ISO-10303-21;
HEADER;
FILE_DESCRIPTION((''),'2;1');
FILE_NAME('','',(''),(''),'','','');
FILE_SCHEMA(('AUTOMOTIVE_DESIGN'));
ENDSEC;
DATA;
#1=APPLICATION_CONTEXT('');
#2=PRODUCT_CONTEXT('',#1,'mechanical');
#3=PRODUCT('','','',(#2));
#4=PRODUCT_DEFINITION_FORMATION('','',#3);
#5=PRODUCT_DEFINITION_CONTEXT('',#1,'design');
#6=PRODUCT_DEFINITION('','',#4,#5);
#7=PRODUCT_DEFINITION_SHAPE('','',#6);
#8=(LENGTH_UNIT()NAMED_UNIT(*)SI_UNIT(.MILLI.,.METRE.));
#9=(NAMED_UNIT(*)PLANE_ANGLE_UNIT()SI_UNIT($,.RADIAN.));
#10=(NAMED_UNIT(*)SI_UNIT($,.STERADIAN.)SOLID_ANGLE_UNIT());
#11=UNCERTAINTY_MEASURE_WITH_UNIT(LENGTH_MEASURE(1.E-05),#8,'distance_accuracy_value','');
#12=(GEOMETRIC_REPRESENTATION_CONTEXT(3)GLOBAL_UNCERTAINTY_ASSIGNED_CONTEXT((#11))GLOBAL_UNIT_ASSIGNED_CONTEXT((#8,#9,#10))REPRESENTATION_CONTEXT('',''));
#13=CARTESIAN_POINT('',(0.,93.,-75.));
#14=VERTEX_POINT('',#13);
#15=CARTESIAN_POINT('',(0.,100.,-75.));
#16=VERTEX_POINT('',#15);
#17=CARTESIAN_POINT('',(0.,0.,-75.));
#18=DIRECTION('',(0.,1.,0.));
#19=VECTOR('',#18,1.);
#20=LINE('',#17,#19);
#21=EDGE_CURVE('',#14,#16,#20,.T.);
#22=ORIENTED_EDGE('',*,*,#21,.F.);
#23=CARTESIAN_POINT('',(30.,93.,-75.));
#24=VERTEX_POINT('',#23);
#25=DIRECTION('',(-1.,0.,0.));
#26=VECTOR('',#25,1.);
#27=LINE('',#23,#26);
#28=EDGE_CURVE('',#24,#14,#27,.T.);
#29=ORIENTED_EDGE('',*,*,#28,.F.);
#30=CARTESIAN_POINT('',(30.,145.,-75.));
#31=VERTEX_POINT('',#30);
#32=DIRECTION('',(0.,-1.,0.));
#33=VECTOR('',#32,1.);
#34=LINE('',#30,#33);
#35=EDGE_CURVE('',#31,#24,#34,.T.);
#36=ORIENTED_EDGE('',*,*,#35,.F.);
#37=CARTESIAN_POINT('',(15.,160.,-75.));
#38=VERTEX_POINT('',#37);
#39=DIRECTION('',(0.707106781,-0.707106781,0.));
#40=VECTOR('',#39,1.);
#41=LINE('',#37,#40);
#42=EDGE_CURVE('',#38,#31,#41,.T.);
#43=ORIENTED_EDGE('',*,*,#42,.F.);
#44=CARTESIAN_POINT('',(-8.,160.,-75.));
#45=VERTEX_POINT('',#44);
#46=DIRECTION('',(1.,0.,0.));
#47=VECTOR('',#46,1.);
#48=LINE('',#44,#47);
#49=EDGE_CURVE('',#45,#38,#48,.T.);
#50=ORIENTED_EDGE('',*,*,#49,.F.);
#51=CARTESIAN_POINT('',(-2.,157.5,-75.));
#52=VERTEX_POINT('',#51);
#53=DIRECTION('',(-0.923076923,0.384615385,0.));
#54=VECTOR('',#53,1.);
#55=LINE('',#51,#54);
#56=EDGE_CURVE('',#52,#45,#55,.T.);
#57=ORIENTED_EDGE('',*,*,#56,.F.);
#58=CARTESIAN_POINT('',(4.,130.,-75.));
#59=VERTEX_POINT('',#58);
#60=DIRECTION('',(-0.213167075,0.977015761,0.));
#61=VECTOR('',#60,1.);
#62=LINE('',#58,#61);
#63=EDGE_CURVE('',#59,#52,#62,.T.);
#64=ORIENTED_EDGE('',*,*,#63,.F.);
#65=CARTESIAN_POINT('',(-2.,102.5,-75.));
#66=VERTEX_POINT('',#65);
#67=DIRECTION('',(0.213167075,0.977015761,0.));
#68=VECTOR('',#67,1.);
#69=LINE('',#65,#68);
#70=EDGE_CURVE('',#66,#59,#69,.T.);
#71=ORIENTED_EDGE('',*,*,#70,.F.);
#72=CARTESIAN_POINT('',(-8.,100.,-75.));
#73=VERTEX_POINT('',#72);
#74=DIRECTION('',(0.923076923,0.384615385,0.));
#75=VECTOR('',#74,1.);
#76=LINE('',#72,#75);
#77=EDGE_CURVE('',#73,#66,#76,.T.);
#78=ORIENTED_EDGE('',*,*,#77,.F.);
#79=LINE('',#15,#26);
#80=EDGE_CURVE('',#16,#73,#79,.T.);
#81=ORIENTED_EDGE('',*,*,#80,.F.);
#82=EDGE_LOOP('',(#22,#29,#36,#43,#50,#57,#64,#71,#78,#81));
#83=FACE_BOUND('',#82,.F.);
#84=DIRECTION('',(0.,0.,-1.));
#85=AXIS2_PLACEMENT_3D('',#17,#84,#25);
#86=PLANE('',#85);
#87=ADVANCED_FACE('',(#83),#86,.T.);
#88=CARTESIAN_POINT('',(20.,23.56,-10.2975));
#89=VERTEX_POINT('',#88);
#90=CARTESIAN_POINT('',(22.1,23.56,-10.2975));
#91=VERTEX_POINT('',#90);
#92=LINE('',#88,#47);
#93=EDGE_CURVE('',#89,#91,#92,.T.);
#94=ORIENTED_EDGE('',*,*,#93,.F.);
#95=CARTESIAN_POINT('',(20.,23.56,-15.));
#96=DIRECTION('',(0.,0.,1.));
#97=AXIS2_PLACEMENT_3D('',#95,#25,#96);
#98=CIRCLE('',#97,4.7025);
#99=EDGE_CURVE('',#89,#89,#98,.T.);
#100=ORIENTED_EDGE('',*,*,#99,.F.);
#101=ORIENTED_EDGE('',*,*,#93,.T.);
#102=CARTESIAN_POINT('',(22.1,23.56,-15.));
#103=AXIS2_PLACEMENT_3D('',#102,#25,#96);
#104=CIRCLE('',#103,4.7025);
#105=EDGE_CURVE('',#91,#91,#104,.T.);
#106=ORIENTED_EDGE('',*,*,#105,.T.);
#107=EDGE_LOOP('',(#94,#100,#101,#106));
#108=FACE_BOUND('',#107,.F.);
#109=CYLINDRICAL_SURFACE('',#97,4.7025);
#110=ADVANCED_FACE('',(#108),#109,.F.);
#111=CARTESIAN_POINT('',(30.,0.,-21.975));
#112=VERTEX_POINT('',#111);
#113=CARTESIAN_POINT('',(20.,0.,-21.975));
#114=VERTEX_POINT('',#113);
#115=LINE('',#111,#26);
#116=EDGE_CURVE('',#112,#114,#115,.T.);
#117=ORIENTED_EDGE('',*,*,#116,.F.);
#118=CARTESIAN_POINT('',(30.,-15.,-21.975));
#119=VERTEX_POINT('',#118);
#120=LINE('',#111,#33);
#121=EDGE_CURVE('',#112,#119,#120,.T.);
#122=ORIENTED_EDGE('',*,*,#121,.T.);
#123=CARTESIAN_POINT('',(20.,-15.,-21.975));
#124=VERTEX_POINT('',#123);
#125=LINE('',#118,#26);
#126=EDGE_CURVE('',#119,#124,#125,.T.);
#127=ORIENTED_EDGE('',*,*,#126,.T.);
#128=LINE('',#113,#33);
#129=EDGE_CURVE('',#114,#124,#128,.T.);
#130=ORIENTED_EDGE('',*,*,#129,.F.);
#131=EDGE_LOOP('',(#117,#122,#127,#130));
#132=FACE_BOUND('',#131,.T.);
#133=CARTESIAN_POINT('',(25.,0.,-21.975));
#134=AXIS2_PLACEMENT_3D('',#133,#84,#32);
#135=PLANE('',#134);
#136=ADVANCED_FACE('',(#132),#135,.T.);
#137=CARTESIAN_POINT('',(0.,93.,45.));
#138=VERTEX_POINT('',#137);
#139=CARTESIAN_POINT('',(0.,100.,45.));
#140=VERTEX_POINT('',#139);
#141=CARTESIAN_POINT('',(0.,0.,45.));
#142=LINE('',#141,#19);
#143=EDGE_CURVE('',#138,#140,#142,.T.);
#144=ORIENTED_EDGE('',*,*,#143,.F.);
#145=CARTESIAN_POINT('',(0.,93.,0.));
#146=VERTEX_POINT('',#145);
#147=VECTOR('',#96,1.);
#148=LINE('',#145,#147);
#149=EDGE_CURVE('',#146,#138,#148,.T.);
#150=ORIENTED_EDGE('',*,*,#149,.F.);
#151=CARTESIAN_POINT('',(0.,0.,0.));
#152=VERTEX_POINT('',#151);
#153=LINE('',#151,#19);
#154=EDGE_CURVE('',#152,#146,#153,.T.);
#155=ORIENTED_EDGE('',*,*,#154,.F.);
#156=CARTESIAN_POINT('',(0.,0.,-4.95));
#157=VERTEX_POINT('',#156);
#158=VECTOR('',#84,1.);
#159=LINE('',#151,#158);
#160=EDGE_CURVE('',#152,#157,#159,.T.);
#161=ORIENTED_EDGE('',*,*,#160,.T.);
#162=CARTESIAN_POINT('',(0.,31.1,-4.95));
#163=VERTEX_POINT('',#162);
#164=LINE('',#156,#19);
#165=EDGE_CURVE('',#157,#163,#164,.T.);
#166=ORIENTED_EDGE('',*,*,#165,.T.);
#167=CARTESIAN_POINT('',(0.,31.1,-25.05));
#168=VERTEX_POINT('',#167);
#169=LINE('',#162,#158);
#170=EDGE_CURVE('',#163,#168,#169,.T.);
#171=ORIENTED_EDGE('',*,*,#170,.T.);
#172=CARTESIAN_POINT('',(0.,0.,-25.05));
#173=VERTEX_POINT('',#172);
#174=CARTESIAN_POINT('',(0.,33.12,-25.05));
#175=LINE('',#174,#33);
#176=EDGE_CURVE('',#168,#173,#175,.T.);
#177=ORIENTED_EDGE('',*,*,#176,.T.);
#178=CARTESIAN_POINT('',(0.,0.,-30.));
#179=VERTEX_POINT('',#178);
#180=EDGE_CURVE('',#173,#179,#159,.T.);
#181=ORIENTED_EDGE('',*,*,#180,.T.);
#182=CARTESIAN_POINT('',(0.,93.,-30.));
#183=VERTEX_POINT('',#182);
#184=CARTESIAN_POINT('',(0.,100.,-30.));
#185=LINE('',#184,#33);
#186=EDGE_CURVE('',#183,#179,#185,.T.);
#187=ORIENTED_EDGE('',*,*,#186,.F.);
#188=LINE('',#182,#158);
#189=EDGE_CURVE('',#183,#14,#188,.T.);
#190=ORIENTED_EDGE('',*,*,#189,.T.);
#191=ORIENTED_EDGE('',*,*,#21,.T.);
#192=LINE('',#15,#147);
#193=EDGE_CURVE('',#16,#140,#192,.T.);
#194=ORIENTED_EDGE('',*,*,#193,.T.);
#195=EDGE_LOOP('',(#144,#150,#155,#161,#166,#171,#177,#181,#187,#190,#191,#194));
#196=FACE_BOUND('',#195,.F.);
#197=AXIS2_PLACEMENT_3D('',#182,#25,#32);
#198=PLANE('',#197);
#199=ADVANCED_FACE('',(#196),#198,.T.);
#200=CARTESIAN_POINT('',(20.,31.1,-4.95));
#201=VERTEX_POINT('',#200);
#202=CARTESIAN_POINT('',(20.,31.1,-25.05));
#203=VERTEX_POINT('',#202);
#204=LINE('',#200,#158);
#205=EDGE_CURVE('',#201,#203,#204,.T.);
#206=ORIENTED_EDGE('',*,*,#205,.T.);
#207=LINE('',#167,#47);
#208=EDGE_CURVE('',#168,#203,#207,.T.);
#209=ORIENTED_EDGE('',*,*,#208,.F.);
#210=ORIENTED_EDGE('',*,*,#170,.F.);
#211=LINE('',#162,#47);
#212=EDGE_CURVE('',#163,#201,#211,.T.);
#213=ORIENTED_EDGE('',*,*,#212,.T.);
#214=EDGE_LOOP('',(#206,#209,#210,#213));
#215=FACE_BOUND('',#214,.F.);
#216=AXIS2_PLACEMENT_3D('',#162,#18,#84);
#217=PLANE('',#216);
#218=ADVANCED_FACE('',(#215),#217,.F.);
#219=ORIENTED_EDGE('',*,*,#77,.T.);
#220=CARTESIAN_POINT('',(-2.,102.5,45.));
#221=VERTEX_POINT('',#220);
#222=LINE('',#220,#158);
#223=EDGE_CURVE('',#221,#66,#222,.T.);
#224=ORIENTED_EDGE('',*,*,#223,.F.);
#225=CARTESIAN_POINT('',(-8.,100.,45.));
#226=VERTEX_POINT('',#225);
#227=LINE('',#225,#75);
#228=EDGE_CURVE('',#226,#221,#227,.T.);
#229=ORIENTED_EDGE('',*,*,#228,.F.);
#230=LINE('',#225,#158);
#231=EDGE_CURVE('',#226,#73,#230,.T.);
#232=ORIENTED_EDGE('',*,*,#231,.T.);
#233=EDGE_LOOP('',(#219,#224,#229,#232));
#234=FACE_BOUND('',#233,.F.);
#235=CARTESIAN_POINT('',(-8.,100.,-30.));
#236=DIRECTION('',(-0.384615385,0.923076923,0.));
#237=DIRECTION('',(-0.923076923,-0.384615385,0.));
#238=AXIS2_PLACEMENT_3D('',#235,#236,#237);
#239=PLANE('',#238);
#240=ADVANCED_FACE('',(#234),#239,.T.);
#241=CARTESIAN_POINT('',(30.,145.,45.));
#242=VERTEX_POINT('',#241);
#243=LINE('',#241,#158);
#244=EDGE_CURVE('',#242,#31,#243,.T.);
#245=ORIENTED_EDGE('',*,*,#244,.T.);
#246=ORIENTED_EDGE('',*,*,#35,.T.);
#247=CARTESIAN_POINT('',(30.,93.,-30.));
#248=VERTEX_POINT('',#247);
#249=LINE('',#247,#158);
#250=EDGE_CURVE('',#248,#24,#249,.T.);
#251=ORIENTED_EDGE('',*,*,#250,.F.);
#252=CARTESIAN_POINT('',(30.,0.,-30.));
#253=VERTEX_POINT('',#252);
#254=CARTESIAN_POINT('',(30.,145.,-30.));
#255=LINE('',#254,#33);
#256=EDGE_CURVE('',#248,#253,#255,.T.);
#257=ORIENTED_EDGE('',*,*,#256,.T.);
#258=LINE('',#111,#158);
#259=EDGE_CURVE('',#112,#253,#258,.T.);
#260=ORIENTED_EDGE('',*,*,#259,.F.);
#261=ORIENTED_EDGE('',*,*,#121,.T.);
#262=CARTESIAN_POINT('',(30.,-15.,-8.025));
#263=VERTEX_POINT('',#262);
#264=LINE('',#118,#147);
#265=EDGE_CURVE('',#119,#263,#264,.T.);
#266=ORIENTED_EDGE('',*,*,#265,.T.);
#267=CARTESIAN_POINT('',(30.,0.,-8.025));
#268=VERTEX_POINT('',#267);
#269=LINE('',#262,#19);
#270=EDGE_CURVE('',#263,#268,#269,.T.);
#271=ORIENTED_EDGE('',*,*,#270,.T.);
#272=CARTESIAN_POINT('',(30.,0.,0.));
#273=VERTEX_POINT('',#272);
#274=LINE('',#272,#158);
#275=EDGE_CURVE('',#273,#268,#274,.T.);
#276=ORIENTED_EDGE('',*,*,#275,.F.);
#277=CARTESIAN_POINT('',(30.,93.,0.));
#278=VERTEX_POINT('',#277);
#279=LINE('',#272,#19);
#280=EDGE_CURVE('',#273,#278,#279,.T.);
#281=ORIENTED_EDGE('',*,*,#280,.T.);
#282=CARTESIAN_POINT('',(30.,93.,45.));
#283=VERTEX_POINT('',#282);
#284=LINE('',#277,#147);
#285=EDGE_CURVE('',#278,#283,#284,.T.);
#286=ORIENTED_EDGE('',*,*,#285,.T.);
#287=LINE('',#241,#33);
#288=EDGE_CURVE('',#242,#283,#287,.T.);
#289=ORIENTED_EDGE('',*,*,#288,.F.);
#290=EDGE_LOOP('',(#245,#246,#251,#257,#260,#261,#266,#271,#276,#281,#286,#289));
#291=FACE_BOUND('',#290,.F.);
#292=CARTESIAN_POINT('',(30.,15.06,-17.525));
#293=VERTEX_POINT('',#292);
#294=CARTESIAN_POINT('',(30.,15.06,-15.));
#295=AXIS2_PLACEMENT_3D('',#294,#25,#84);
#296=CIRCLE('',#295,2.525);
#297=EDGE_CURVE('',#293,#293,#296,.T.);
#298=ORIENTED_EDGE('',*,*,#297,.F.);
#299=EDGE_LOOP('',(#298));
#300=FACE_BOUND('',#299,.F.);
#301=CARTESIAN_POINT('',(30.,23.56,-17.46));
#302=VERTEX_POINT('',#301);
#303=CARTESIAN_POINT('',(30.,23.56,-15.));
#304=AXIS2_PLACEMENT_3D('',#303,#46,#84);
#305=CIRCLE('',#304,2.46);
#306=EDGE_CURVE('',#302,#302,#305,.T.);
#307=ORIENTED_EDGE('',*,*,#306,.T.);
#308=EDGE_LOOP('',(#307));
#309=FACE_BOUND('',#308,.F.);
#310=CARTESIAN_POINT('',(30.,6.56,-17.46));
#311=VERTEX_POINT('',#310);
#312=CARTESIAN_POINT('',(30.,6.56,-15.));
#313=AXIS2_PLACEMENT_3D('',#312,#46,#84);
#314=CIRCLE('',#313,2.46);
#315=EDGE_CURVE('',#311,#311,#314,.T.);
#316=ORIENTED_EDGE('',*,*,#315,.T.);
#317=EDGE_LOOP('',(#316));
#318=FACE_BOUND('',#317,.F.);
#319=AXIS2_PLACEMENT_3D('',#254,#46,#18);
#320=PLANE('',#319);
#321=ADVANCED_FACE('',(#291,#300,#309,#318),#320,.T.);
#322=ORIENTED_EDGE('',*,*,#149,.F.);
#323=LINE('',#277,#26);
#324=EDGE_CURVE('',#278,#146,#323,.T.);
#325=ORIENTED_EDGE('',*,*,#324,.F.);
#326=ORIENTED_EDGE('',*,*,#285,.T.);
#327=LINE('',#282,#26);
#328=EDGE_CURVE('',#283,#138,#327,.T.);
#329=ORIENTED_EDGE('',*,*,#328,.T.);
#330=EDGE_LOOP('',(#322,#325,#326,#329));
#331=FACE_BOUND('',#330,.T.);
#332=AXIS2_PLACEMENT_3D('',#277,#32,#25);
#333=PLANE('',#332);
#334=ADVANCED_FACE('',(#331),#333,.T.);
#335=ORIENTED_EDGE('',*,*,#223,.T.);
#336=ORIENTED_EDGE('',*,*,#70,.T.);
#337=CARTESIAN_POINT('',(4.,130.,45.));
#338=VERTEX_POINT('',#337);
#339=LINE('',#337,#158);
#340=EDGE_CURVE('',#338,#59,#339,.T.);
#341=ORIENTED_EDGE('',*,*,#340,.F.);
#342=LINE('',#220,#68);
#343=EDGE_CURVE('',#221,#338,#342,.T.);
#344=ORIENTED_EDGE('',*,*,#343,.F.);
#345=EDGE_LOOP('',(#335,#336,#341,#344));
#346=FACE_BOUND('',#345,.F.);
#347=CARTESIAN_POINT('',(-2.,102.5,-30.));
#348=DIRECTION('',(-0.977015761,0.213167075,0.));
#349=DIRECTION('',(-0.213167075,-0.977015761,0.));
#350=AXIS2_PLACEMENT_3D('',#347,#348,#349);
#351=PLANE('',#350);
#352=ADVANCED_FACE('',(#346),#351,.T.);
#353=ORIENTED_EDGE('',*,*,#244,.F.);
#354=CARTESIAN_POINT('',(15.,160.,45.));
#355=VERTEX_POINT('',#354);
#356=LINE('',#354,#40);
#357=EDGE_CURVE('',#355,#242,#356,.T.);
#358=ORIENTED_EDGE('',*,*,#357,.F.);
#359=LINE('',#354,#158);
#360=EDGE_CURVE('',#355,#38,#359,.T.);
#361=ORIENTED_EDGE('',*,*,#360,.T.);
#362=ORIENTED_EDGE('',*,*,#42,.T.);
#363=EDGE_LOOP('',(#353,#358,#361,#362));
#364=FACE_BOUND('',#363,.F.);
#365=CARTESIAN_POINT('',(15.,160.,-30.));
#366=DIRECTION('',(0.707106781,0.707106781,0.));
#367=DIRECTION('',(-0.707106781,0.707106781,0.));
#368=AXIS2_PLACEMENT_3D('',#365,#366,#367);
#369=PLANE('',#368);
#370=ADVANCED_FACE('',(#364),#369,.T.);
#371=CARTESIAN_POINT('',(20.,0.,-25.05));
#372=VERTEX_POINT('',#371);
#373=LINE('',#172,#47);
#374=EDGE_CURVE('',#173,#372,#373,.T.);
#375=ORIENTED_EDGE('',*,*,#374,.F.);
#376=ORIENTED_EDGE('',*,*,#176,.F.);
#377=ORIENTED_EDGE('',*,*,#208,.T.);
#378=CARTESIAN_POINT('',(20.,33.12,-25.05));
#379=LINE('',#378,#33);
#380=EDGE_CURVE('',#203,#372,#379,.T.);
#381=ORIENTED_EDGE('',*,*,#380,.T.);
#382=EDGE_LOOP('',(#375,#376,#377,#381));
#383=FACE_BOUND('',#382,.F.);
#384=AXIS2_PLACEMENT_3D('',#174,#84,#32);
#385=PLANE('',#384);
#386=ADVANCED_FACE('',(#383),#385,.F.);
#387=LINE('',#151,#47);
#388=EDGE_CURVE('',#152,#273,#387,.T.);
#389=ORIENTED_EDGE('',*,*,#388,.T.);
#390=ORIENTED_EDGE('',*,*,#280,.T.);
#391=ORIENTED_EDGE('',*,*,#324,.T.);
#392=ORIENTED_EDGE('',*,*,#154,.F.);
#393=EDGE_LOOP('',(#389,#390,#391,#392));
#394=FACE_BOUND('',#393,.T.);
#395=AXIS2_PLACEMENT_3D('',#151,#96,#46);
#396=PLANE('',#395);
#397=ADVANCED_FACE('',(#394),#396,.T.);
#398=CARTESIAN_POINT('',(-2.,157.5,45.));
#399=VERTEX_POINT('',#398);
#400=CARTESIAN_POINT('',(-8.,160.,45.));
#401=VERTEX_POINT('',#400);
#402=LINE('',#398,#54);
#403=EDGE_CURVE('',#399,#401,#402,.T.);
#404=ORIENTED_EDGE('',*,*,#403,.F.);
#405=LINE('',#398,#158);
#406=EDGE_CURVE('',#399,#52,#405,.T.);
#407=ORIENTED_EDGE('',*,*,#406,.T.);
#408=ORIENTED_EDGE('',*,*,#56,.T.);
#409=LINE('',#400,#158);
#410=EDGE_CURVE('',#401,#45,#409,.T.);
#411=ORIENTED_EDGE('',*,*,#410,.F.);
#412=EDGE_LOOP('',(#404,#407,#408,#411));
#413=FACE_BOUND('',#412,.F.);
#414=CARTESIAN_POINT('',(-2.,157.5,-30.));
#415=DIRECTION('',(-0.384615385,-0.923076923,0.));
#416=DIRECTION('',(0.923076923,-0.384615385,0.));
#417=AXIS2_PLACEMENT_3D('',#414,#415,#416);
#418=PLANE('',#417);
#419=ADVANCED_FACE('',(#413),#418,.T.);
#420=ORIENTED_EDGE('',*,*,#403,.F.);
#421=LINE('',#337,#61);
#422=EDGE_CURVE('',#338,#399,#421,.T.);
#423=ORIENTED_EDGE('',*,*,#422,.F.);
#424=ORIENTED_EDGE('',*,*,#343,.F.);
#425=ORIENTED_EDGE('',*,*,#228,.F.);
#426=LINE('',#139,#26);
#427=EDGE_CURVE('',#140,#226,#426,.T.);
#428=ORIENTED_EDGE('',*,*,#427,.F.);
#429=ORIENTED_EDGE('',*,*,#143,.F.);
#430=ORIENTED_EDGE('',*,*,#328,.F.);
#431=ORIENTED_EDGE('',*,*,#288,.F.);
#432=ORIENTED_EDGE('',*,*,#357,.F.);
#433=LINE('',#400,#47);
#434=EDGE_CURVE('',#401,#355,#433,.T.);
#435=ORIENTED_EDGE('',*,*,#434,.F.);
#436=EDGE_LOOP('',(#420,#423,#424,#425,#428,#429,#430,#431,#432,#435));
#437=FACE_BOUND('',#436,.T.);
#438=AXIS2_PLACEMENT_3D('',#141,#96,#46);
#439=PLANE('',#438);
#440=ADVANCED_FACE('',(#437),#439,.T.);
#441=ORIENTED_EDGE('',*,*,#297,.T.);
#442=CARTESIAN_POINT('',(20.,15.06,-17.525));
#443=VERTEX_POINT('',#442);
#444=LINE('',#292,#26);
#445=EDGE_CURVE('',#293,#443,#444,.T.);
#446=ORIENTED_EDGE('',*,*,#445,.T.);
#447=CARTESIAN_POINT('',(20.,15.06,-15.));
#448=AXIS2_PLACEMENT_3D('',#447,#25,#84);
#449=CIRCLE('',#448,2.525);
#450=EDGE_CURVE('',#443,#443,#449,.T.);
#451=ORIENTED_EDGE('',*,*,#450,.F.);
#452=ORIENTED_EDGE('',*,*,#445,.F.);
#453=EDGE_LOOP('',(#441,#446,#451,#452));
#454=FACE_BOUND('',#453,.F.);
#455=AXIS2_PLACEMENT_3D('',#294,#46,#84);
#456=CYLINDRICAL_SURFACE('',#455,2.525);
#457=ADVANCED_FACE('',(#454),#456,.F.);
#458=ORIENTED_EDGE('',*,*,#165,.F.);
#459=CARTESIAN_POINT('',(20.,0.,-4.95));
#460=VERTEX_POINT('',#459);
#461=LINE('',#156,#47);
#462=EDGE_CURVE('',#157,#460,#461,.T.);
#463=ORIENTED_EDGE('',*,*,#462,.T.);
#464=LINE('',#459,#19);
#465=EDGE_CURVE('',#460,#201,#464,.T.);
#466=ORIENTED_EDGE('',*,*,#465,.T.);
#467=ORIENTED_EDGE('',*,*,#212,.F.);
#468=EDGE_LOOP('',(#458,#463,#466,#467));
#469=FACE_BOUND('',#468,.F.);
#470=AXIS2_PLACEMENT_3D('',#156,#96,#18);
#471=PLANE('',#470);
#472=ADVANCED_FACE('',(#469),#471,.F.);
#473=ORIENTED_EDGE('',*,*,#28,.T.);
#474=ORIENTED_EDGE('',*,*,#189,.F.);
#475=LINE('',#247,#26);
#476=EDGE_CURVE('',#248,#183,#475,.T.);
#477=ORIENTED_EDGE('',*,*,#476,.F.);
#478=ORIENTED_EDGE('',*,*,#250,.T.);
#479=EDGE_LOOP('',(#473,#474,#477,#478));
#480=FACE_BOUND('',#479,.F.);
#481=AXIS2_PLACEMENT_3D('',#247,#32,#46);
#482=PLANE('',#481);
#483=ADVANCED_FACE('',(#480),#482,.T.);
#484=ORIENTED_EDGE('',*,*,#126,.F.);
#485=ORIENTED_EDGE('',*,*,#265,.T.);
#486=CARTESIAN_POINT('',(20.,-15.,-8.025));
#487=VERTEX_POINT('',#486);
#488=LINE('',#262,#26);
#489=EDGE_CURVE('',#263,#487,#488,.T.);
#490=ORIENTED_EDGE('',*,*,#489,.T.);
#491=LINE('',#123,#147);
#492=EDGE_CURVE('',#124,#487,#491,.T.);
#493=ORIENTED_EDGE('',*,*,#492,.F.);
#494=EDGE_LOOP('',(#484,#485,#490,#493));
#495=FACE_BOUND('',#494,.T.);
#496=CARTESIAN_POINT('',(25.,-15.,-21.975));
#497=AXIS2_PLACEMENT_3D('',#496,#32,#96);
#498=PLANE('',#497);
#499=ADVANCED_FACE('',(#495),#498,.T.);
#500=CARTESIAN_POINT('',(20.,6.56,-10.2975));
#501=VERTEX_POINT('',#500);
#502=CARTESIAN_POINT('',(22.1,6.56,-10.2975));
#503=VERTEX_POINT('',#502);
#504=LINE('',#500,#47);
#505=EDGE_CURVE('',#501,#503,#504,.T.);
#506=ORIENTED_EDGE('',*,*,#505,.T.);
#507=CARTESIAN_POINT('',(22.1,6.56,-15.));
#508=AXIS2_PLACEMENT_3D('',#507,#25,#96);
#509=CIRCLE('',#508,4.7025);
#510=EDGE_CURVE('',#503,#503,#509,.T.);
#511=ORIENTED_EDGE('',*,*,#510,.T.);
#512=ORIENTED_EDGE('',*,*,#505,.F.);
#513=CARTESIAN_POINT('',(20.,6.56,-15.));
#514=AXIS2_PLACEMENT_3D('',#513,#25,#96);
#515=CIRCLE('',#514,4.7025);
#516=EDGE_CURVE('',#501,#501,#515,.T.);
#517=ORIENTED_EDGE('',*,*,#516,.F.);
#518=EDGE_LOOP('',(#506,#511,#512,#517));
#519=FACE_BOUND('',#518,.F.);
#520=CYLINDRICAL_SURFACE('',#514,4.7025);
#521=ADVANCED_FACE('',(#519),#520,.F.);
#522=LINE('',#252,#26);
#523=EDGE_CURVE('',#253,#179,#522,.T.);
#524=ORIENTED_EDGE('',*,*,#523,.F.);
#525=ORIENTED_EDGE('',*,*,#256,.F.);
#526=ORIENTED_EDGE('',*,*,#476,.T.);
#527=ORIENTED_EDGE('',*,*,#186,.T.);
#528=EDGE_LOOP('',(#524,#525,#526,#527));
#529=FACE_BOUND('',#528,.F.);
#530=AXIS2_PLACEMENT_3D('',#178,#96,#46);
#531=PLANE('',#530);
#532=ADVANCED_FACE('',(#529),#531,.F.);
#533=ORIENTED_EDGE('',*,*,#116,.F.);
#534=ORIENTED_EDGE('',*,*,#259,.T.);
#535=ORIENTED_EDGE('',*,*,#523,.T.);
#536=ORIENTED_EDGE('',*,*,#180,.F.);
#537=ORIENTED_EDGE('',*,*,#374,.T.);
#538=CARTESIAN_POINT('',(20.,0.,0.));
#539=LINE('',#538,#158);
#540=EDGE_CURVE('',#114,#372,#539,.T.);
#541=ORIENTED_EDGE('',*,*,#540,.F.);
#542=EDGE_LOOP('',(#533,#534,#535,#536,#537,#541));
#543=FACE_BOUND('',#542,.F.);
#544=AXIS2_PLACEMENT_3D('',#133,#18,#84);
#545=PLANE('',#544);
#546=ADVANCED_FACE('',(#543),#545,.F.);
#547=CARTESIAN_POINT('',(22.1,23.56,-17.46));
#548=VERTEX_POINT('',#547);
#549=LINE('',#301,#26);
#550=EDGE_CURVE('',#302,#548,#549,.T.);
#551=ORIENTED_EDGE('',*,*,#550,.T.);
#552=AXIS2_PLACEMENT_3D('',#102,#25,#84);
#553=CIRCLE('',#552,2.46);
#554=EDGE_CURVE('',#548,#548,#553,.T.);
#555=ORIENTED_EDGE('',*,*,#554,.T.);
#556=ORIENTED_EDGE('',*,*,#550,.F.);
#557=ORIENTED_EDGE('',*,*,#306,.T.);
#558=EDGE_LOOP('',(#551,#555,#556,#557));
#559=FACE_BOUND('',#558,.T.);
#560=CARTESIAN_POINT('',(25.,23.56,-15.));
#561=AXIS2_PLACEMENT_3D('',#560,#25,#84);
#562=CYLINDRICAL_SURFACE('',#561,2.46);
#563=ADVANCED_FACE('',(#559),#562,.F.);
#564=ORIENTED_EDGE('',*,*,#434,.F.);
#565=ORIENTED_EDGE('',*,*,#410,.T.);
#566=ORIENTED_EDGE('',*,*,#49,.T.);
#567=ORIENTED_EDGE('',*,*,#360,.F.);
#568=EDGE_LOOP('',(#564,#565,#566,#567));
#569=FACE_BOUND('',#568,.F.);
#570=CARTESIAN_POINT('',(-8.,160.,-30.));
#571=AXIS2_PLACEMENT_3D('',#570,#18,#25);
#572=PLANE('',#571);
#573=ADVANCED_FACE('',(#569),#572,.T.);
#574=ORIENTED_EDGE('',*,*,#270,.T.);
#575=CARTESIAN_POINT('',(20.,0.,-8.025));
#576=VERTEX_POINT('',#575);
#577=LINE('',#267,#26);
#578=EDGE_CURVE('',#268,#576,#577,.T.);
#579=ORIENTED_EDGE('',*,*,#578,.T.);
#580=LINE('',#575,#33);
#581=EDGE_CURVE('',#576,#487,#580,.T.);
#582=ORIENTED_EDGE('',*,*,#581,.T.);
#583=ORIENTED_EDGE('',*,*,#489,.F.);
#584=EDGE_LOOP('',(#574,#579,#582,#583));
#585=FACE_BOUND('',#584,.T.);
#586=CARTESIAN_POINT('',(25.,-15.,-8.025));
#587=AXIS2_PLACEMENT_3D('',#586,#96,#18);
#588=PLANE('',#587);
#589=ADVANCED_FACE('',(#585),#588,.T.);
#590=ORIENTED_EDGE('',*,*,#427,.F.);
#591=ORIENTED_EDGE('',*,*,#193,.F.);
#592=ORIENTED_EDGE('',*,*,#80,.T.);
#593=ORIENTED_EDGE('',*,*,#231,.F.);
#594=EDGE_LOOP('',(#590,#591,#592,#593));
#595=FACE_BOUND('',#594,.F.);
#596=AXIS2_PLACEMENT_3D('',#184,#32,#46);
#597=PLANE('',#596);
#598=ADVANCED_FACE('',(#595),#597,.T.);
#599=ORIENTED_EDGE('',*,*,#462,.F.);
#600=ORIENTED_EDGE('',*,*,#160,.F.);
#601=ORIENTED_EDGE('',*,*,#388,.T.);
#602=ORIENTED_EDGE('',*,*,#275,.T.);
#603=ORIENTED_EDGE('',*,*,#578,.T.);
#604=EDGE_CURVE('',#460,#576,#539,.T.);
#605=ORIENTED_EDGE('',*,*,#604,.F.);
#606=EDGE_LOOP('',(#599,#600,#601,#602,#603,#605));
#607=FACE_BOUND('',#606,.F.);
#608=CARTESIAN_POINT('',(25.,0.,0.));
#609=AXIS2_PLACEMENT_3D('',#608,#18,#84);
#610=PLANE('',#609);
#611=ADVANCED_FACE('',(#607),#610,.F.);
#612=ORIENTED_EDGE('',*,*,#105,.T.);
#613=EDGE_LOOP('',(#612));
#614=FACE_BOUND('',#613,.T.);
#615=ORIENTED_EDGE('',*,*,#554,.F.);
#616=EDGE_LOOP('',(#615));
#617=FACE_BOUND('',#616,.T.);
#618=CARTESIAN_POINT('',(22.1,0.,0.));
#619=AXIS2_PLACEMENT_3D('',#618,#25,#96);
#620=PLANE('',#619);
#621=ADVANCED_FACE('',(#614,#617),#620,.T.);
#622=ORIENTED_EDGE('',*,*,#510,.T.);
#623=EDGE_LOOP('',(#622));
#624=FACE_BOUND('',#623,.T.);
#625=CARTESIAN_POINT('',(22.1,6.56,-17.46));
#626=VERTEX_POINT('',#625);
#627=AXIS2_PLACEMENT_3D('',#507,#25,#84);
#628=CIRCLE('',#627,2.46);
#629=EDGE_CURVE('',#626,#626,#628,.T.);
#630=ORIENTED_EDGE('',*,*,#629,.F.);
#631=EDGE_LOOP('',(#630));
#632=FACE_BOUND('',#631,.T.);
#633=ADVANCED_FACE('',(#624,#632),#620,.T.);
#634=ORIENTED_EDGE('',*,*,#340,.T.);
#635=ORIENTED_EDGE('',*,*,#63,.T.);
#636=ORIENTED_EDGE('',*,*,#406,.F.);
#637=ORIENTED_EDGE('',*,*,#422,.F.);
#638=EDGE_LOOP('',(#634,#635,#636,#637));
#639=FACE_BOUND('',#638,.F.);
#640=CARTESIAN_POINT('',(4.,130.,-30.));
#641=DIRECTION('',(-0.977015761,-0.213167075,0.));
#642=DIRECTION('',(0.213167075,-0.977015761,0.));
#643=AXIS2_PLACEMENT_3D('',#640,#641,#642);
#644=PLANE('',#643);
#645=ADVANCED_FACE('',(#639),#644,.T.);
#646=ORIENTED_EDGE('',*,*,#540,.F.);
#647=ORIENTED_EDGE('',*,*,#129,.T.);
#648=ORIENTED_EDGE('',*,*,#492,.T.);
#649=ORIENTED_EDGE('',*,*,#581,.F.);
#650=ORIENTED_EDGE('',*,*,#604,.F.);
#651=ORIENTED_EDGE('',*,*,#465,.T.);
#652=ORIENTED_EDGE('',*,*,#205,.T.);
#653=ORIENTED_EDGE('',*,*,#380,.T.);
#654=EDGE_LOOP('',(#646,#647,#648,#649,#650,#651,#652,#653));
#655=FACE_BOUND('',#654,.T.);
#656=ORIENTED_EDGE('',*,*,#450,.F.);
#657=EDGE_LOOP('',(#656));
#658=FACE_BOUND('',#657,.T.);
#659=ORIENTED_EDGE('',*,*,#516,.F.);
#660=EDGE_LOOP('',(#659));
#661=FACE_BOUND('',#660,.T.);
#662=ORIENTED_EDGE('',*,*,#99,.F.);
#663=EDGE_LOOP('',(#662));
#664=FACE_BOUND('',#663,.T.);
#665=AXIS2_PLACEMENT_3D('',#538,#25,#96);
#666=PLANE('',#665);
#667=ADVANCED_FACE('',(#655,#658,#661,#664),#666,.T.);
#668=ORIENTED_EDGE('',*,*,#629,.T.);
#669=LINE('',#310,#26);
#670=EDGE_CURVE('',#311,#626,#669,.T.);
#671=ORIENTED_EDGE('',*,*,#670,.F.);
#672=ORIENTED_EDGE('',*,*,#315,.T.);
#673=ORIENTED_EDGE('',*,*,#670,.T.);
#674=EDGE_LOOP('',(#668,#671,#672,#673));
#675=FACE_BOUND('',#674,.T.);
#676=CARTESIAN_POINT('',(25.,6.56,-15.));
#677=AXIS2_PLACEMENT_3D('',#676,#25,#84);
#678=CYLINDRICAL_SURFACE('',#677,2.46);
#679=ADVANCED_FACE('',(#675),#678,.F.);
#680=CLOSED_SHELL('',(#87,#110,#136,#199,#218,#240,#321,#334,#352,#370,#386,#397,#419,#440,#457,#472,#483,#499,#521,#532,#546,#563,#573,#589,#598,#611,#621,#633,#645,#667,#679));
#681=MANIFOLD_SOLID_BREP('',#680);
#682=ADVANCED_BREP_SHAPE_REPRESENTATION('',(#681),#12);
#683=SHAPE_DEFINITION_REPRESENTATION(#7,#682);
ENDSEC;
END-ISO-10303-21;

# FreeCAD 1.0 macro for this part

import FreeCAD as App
import Part
import Sketcher
Q = App.Units.Quantity

doc = App.newDocument("Part")
body = doc.addObject("PartDesign::Body", "Body")

sketch1 = doc.addObject("Sketcher::SketchObject", "Sketch")
body.addObject(sketch1)
sketch1.AttachmentSupport = (doc.XY_Plane, [""])
sketch1.MapMode = "FlatFace"
sketch1.addGeometry(Part.LineSegment(App.Vector(0, 40, 0), App.Vector(0, 0, 0)), False)
sketch1.addGeometry(Part.LineSegment(App.Vector(0, 0, 0), App.Vector(25, 0, 0)), False)
sketch1.addGeometry(Part.LineSegment(App.Vector(25, 0, 0), App.Vector(25, 40, 0)), False)
sketch1.addGeometry(Part.LineSegment(App.Vector(25, 40, 0), App.Vector(0, 40, 0)), False)
sketch1.addConstraint(Sketcher.Constraint("Coincident", 0, 2, 1, 1))
sketch1.addConstraint(Sketcher.Constraint("Coincident", 1, 2, 2, 1))
sketch1.addConstraint(Sketcher.Constraint("Coincident", 2, 2, 3, 1))
sketch1.addConstraint(Sketcher.Constraint("Coincident", 3, 2, 0, 1))
sketch1.addConstraint(Sketcher.Constraint("Vertical", 0))
sketch1.addConstraint(Sketcher.Constraint("Horizontal", 1))
sketch1.addConstraint(Sketcher.Constraint("Vertical", 2))
sketch1.addConstraint(Sketcher.Constraint("Horizontal", 3))
sketch1.addConstraint(Sketcher.Constraint("Coincident", 0, 2, -1, 1))
sketch1.addConstraint(Sketcher.Constraint("DistanceX", 1, 1, 1, 2, 25.0))
sketch1.addConstraint(Sketcher.Constraint("DistanceY", 0, 2, 0, 1, 40.0))
pad1 = doc.addObject("PartDesign::Pad", "Pad")
body.addObject(pad1)
pad1.Profile = sketch1
pad1.Length = 30
pad1.Reversed = True

sketch2 = doc.addObject("Sketcher::SketchObject", "Sketch001")
body.addObject(sketch2)
sketch2.AttachmentSupport = (doc.YZ_Plane, [""])
sketch2.MapMode = "FlatFace"
sketch2.AttachmentOffset = App.Placement(App.Vector(0, 0, 25), App.Rotation())
sketch2.addGeometry(Part.Circle(App.Vector(6.56, -15, 0), App.Vector(0, 0, 1), 2.46), False)
sketch2.addConstraint(Sketcher.Constraint("Diameter", 0, 4.92))
sketch2.addConstraint(Sketcher.Constraint("DistanceY", 0, 3, -1, 1, 15.0))
sketch2.addConstraint(Sketcher.Constraint("DistanceX", -1, 1, 0, 3, 6.56))
pocket1 = doc.addObject("PartDesign::Pocket", "Pocket")
body.addObject(pocket1)
pocket1.Profile = sketch2
pocket1.Length = 30

sketch3 = doc.addObject("Sketcher::SketchObject", "Sketch002")
body.addObject(sketch3)
sketch3.AttachmentSupport = (doc.YZ_Plane, [""])
sketch3.MapMode = "FlatFace"
sketch3.addGeometry(Part.LineSegment(App.Vector(0, -25.05, 0), App.Vector(0, -4.95, 0)), False)
sketch3.addGeometry(Part.LineSegment(App.Vector(0, -4.95, 0), App.Vector(33.12, -4.95, 0)), False)
sketch3.addGeometry(Part.LineSegment(App.Vector(33.12, -4.95, 0), App.Vector(33.12, -25.05, 0)), False)
sketch3.addGeometry(Part.LineSegment(App.Vector(33.12, -25.05, 0), App.Vector(0, -25.05, 0)), False)
sketch3.addConstraint(Sketcher.Constraint("Coincident", 0, 2, 1, 1))
sketch3.addConstraint(Sketcher.Constraint("Coincident", 1, 2, 2, 1))
sketch3.addConstraint(Sketcher.Constraint("Coincident", 2, 2, 3, 1))
sketch3.addConstraint(Sketcher.Constraint("Coincident", 3, 2, 0, 1))
sketch3.addConstraint(Sketcher.Constraint("Vertical", 0))
sketch3.addConstraint(Sketcher.Constraint("Horizontal", 1))
sketch3.addConstraint(Sketcher.Constraint("Vertical", 2))
sketch3.addConstraint(Sketcher.Constraint("Horizontal", 3))
sketch3.addConstraint(Sketcher.Constraint("PointOnObject", 0, 2, -2))
sketch3.addConstraint(Sketcher.Constraint("DistanceY", 0, 1, 0, 2, 20.1))
sketch3.addConstraint(Sketcher.Constraint("DistanceX", 1, 1, 1, 2, 33.12))
sketch3.addConstraint(Sketcher.Constraint("DistanceY", 0, 2, -1, 1, 4.95))
pocket2 = doc.addObject("PartDesign::Pocket", "Pocket001")
body.addObject(pocket2)
pocket2.Profile = sketch3
pocket2.Length = 20
pocket2.Reversed = True

sketch4 = doc.addObject("Sketcher::SketchObject", "Sketch003")
body.addObject(sketch4)
sketch4.AttachmentSupport = (doc.XZ_Plane, [""])
sketch4.MapMode = "FlatFace"
sketch4.addGeometry(Part.LineSegment(App.Vector(25, -8.025, 0), App.Vector(20, -8.025, 0)), False)
sketch4.addGeometry(Part.LineSegment(App.Vector(20, -8.025, 0), App.Vector(20, -21.975, 0)), False)
sketch4.addGeometry(Part.LineSegment(App.Vector(20, -21.975, 0), App.Vector(25, -21.975, 0)), False)
sketch4.addGeometry(Part.LineSegment(App.Vector(25, -21.975, 0), App.Vector(25, -8.025, 0)), False)
sketch4.addConstraint(Sketcher.Constraint("Coincident", 0, 2, 1, 1))
sketch4.addConstraint(Sketcher.Constraint("Coincident", 1, 2, 2, 1))
sketch4.addConstraint(Sketcher.Constraint("Coincident", 2, 2, 3, 1))
sketch4.addConstraint(Sketcher.Constraint("Coincident", 3, 2, 0, 1))
sketch4.addConstraint(Sketcher.Constraint("Horizontal", 0))
sketch4.addConstraint(Sketcher.Constraint("Vertical", 1))
sketch4.addConstraint(Sketcher.Constraint("Horizontal", 2))
sketch4.addConstraint(Sketcher.Constraint("Vertical", 3))
sketch4.addConstraint(Sketcher.Constraint("DistanceY", 1, 2, 1, 1, 13.95))
sketch4.addConstraint(Sketcher.Constraint("DistanceX", 0, 2, 0, 1, 5.0))
sketch4.addConstraint(Sketcher.Constraint("DistanceX", -1, 1, 0, 2, 20.0))
sketch4.addConstraint(Sketcher.Constraint("DistanceY", 0, 2, -1, 1, 8.025))
pad2 = doc.addObject("PartDesign::Pad", "Pad001")
body.addObject(pad2)
pad2.Profile = sketch4
pad2.Length = 15

sketch5 = doc.addObject("Sketcher::SketchObject", "Sketch004")
body.addObject(sketch5)
sketch5.AttachmentSupport = (doc.YZ_Plane, [""])
sketch5.MapMode = "FlatFace"
sketch5.AttachmentOffset = App.Placement(App.Vector(0, 0, 20), App.Rotation())
sketch5.addGeometry(Part.Circle(App.Vector(6.56, -15, 0), App.Vector(0, 0, 1), 4.7025), False)
sketch5.addGeometry(Part.Circle(App.Vector(6.56, -15, 0), App.Vector(0, 0, 1), 2.46), False)
sketch5.addConstraint(Sketcher.Constraint("Coincident", 1, 3, 0, 3))
sketch5.addConstraint(Sketcher.Constraint("Diameter", 0, 9.405))
sketch5.addConstraint(Sketcher.Constraint("Diameter", 1, 4.92))
sketch5.addConstraint(Sketcher.Constraint("DistanceY", 0, 3, -1, 1, 15.0))
sketch5.addConstraint(Sketcher.Constraint("DistanceX", -1, 1, 0, 3, 6.56))
pocket3 = doc.addObject("PartDesign::Pocket", "Pocket002")
body.addObject(pocket3)
pocket3.Profile = sketch5
pocket3.Length = 2.1
pocket3.Reversed = True

sketch6 = doc.addObject("Sketcher::SketchObject", "Sketch005")
body.addObject(sketch6)
sketch6.AttachmentSupport = (doc.YZ_Plane, [""])
sketch6.MapMode = "FlatFace"
sketch6.AttachmentOffset = App.Placement(App.Vector(0, 0, 25), App.Rotation())
sketch6.addGeometry(Part.Circle(App.Vector(23.56, -15, 0), App.Vector(0, 0, 1), 2.46), False)
sketch6.addConstraint(Sketcher.Constraint("Diameter", 0, 4.92))
sketch6.addConstraint(Sketcher.Constraint("DistanceY", 0, 3, -1, 1, 15.0))
sketch6.addConstraint(Sketcher.Constraint("DistanceX", -1, 1, 0, 3, 23.56))
pocket4 = doc.addObject("PartDesign::Pocket", "Pocket003")
body.addObject(pocket4)
pocket4.Profile = sketch6
pocket4.Length = 10

sketch7 = doc.addObject("Sketcher::SketchObject", "Sketch006")
body.addObject(sketch7)
sketch7.AttachmentSupport = (doc.YZ_Plane, [""])
sketch7.MapMode = "FlatFace"
sketch7.AttachmentOffset = App.Placement(App.Vector(0, 0, 20), App.Rotation())
sketch7.addGeometry(Part.Circle(App.Vector(23.56, -15, 0), App.Vector(0, 0, 1), 4.7025), False)
sketch7.addGeometry(Part.Circle(App.Vector(23.56, -15, 0), App.Vector(0, 0, 1), 2.46), False)
sketch7.addConstraint(Sketcher.Constraint("Coincident", 1, 3, 0, 3))
sketch7.addConstraint(Sketcher.Constraint("Diameter", 0, 9.405))
sketch7.addConstraint(Sketcher.Constraint("Diameter", 1, 4.92))
sketch7.addConstraint(Sketcher.Constraint("DistanceY", 0, 3, -1, 1, 15.0))
sketch7.addConstraint(Sketcher.Constraint("DistanceX", -1, 1, 0, 3, 23.56))
pocket5 = doc.addObject("PartDesign::Pocket", "Pocket004")
body.addObject(pocket5)
pocket5.Profile = sketch7
pocket5.Length = 2.1
pocket5.Reversed = True

sketch8 = doc.addObject("Sketcher::SketchObject", "Sketch007")
body.addObject(sketch8)
sketch8.AttachmentSupport = (doc.YZ_Plane, [""])
sketch8.MapMode = "FlatFace"
sketch8.AttachmentOffset = App.Placement(App.Vector(0, 0, 25), App.Rotation())
sketch8.addGeometry(Part.LineSegment(App.Vector(0, -30, 0), App.Vector(40, -30, 0)), False)
sketch8.addGeometry(Part.LineSegment(App.Vector(40, -30, 0), App.Vector(40, 0, 0)), False)
sketch8.addGeometry(Part.LineSegment(App.Vector(40, 0, 0), App.Vector(0, 0, 0)), False)
sketch8.addGeometry(Part.LineSegment(App.Vector(0, 0, 0), App.Vector(0, -8.025, 0)), False)
sketch8.addGeometry(Part.LineSegment(App.Vector(0, -8.025, 0), App.Vector(-15, -8.025, 0)), False)
sketch8.addGeometry(Part.LineSegment(App.Vector(-15, -8.025, 0), App.Vector(-15, -21.975, 0)), False)
sketch8.addGeometry(Part.LineSegment(App.Vector(-15, -21.975, 0), App.Vector(0, -21.975, 0)), False)
sketch8.addGeometry(Part.LineSegment(App.Vector(0, -21.975, 0), App.Vector(0, -30, 0)), False)
sketch8.addGeometry(Part.Circle(App.Vector(6.56, -15, 0), App.Vector(0, 0, 1), 2.46), False)
sketch8.addGeometry(Part.Circle(App.Vector(23.56, -15, 0), App.Vector(0, 0, 1), 2.46), False)
sketch8.addConstraint(Sketcher.Constraint("Coincident", 0, 2, 1, 1))
sketch8.addConstraint(Sketcher.Constraint("Coincident", 1, 2, 2, 1))
sketch8.addConstraint(Sketcher.Constraint("Coincident", 2, 2, 3, 1))
sketch8.addConstraint(Sketcher.Constraint("Coincident", 3, 2, 4, 1))
sketch8.addConstraint(Sketcher.Constraint("Coincident", 4, 2, 5, 1))
sketch8.addConstraint(Sketcher.Constraint("Coincident", 5, 2, 6, 1))
sketch8.addConstraint(Sketcher.Constraint("Coincident", 6, 2, 7, 1))
sketch8.addConstraint(Sketcher.Constraint("Coincident", 7, 2, 0, 1))
sketch8.addConstraint(Sketcher.Constraint("Horizontal", 0))
sketch8.addConstraint(Sketcher.Constraint("Vertical", 1))
sketch8.addConstraint(Sketcher.Constraint("Horizontal", 2))
sketch8.addConstraint(Sketcher.Constraint("Vertical", 3))
sketch8.addConstraint(Sketcher.Constraint("Horizontal", 4))
sketch8.addConstraint(Sketcher.Constraint("Vertical", 5))
sketch8.addConstraint(Sketcher.Constraint("Horizontal", 6))
sketch8.addConstraint(Sketcher.Constraint("Vertical", 7))
sketch8.addConstraint(Sketcher.Constraint("Coincident", 2, 2, -1, 1))
sketch8.addConstraint(Sketcher.Constraint("Equal", 8, 9))
sketch8.addConstraint(Sketcher.Constraint("PointOnObject", 6, 2, -2))
sketch8.addConstraint(Sketcher.Constraint("Horizontal", 8, 3, 9, 3))
sketch8.addConstraint(Sketcher.Constraint("Equal", 3, 7))
sketch8.addConstraint(Sketcher.Constraint("Diameter", 8, 4.92))
sketch8.addConstraint(Sketcher.Constraint("DistanceX", 0, 1, 0, 2, 40.0))
sketch8.addConstraint(Sketcher.Constraint("DistanceX", 4, 2, 4, 1, 15.0))
sketch8.addConstraint(Sketcher.Constraint("DistanceY", 1, 1, 1, 2, 30.0))
sketch8.addConstraint(Sketcher.Constraint("DistanceY", 8, 3, -1, 1, 15.0))
sketch8.addConstraint(Sketcher.Constraint("DistanceX", 8, 3, 9, 3, 17.0))
sketch8.addConstraint(Sketcher.Constraint("DistanceY", 5, 2, 5, 1, 13.95))
sketch8.addConstraint(Sketcher.Constraint("DistanceX", -1, 1, 8, 3, 6.56))
pad3 = doc.addObject("PartDesign::Pad", "Pad002")
body.addObject(pad3)
pad3.Profile = sketch8
pad3.Length = 5

sketch9 = doc.addObject("Sketcher::SketchObject", "Sketch008")
body.addObject(sketch9)
sketch9.AttachmentSupport = (doc.XZ_Plane, [""])
sketch9.MapMode = "FlatFace"
sketch9.AttachmentOffset = App.Placement(App.Vector(0, 0, -40), App.Rotation())
sketch9.addGeometry(Part.LineSegment(App.Vector(30, -30, 0), App.Vector(0, -30, 0)), False)
sketch9.addGeometry(Part.LineSegment(App.Vector(0, -30, 0), App.Vector(0, 0, 0)), False)
sketch9.addGeometry(Part.LineSegment(App.Vector(0, 0, 0), App.Vector(30, 0, 0)), False)
sketch9.addGeometry(Part.LineSegment(App.Vector(30, 0, 0), App.Vector(30, -30, 0)), False)
sketch9.addConstraint(Sketcher.Constraint("Coincident", 0, 2, 1, 1))
sketch9.addConstraint(Sketcher.Constraint("Coincident", 1, 2, 2, 1))
sketch9.addConstraint(Sketcher.Constraint("Coincident", 2, 2, 3, 1))
sketch9.addConstraint(Sketcher.Constraint("Coincident", 3, 2, 0, 1))
sketch9.addConstraint(Sketcher.Constraint("Horizontal", 0))
sketch9.addConstraint(Sketcher.Constraint("Vertical", 1))
sketch9.addConstraint(Sketcher.Constraint("Horizontal", 2))
sketch9.addConstraint(Sketcher.Constraint("Vertical", 3))
sketch9.addConstraint(Sketcher.Constraint("Coincident", 1, 2, -1, 1))
sketch9.addConstraint(Sketcher.Constraint("Equal", 2, 1))
sketch9.addConstraint(Sketcher.Constraint("DistanceX", 0, 2, 0, 1, 30.0))
pad4 = doc.addObject("PartDesign::Pad", "Pad003")
body.addObject(pad4)
pad4.Profile = sketch9
pad4.Length = 30
pad4.Reversed = True

sketch10 = doc.addObject("Sketcher::SketchObject", "Sketch009")
body.addObject(sketch10)
sketch10.AttachmentSupport = (doc.YZ_Plane, [""])
sketch10.MapMode = "FlatFace"
sketch10.AttachmentOffset = App.Placement(App.Vector(0, 0, 30), App.Rotation())
sketch10.addGeometry(Part.Circle(App.Vector(15.06, -15, 0), App.Vector(0, 0, 1), 2.525), False)
sketch10.addConstraint(Sketcher.Constraint("Diameter", 0, 5.05))
sketch10.addConstraint(Sketcher.Constraint("DistanceY", 0, 3, -1, 1, 15.0))
sketch10.addConstraint(Sketcher.Constraint("DistanceX", -1, 1, 0, 3, 15.06))
pocket6 = doc.addObject("PartDesign::Pocket", "Pocket005")
body.addObject(pocket6)
pocket6.Profile = sketch10
pocket6.Length = 30

sketch11 = doc.addObject("Sketcher::SketchObject", "Sketch010")
body.addObject(sketch11)
sketch11.AttachmentSupport = (doc.XY_Plane, [""])
sketch11.MapMode = "FlatFace"
sketch11.addGeometry(Part.LineSegment(App.Vector(0, 70, 0), App.Vector(30, 70, 0)), False)
sketch11.addGeometry(Part.LineSegment(App.Vector(30, 70, 0), App.Vector(30, 145, 0)), False)
sketch11.addGeometry(Part.LineSegment(App.Vector(30, 145, 0), App.Vector(15, 160, 0)), False)
sketch11.addGeometry(Part.LineSegment(App.Vector(15, 160, 0), App.Vector(-8, 160, 0)), False)
sketch11.addGeometry(Part.LineSegment(App.Vector(-8, 160, 0), App.Vector(-2, 157.5, 0)), False)
sketch11.addGeometry(Part.LineSegment(App.Vector(-2, 157.5, 0), App.Vector(4, 130, 0)), False)
sketch11.addGeometry(Part.LineSegment(App.Vector(4, 130, 0), App.Vector(-2, 102.5, 0)), False)
sketch11.addGeometry(Part.LineSegment(App.Vector(-2, 102.5, 0), App.Vector(-8, 100, 0)), False)
sketch11.addGeometry(Part.LineSegment(App.Vector(-8, 100, 0), App.Vector(0, 100, 0)), False)
sketch11.addGeometry(Part.LineSegment(App.Vector(0, 100, 0), App.Vector(0, 70, 0)), False)
sketch11.addConstraint(Sketcher.Constraint("Coincident", 0, 2, 1, 1))
sketch11.addConstraint(Sketcher.Constraint("Coincident", 1, 2, 2, 1))
sketch11.addConstraint(Sketcher.Constraint("Coincident", 2, 2, 3, 1))
sketch11.addConstraint(Sketcher.Constraint("Coincident", 3, 2, 4, 1))
sketch11.addConstraint(Sketcher.Constraint("Coincident", 4, 2, 5, 1))
sketch11.addConstraint(Sketcher.Constraint("Coincident", 5, 2, 6, 1))
sketch11.addConstraint(Sketcher.Constraint("Coincident", 6, 2, 7, 1))
sketch11.addConstraint(Sketcher.Constraint("Coincident", 7, 2, 8, 1))
sketch11.addConstraint(Sketcher.Constraint("Coincident", 8, 2, 9, 1))
sketch11.addConstraint(Sketcher.Constraint("Coincident", 9, 2, 0, 1))
sketch11.addConstraint(Sketcher.Constraint("Horizontal", 0))
sketch11.addConstraint(Sketcher.Constraint("Vertical", 1))
sketch11.addConstraint(Sketcher.Constraint("Horizontal", 3))
sketch11.addConstraint(Sketcher.Constraint("Horizontal", 8))
sketch11.addConstraint(Sketcher.Constraint("Vertical", 9))
sketch11.addConstraint(Sketcher.Constraint("PointOnObject", 8, 2, -2))
sketch11.addConstraint(Sketcher.Constraint("Vertical", 4, 2, 6, 2))
sketch11.addConstraint(Sketcher.Constraint("Vertical", 3, 2, 7, 2))
sketch11.addConstraint(Sketcher.Constraint("Equal", 0, 9))
sketch11.addConstraint(Sketcher.Constraint("Equal", 5, 6))
sketch11.addConstraint(Sketcher.Constraint("Equal", 4, 7))
sketch11.addConstraint(Sketcher.Constraint("DistanceX", 0, 1, 0, 2, 30.0))
sketch11.addConstraint(Sketcher.Constraint("DistanceY", 5, 2, 2, 2, 30.0))
sketch11.addConstraint(Sketcher.Constraint("DistanceX", 3, 2, 3, 1, 23.0))
sketch11.addConstraint(Sketcher.Constraint("DistanceX", 8, 1, 8, 2, 8.0))
sketch11.addConstraint(Sketcher.Constraint("DistanceY", 1, 1, 1, 2, 75.0))
sketch11.addConstraint(Sketcher.Constraint("DistanceY", -1, 1, 0, 2, 70.0))
sketch11.addConstraint(Sketcher.Constraint("DistanceX", 4, 2, -1, 1, 2.0))
sketch11.addConstraint(Sketcher.Constraint("DistanceX", -1, 1, 5, 2, 4.0))
sketch11.addConstraint(Sketcher.Constraint("DistanceY", 6, 2, 4, 2, 55.0))
pad5 = doc.addObject("PartDesign::Pad", "Pad004")
body.addObject(pad5)
pad5.Profile = sketch11
pad5.Length = 30
pad5.Reversed = True

sketch12 = doc.addObject("Sketcher::SketchObject", "Sketch011")
body.addObject(sketch12)
sketch12.AttachmentSupport = (doc.YZ_Plane, [""])
sketch12.MapMode = "FlatFace"
sketch12.addGeometry(Part.LineSegment(App.Vector(33.12, -4.95, 0), App.Vector(33.12, -25.05, 0)), False)
sketch12.addGeometry(Part.LineSegment(App.Vector(33.12, -25.05, 0), App.Vector(31.1, -25.05, 0)), False)
sketch12.addGeometry(Part.LineSegment(App.Vector(31.1, -25.05, 0), App.Vector(31.1, -4.95, 0)), False)
sketch12.addGeometry(Part.LineSegment(App.Vector(31.1, -4.95, 0), App.Vector(33.12, -4.95, 0)), False)
sketch12.addConstraint(Sketcher.Constraint("Coincident", 0, 2, 1, 1))
sketch12.addConstraint(Sketcher.Constraint("Coincident", 1, 2, 2, 1))
sketch12.addConstraint(Sketcher.Constraint("Coincident", 2, 2, 3, 1))
sketch12.addConstraint(Sketcher.Constraint("Coincident", 3, 2, 0, 1))
sketch12.addConstraint(Sketcher.Constraint("Vertical", 0))
sketch12.addConstraint(Sketcher.Constraint("Horizontal", 1))
sketch12.addConstraint(Sketcher.Constraint("Vertical", 2))
sketch12.addConstraint(Sketcher.Constraint("Horizontal", 3))
sketch12.addConstraint(Sketcher.Constraint("DistanceX", 1, 2, 1, 1, 2.02))
sketch12.addConstraint(Sketcher.Constraint("DistanceY", 0, 2, 0, 1, 20.1))
sketch12.addConstraint(Sketcher.Constraint("DistanceX", -1, 1, 1, 2, 31.1))
sketch12.addConstraint(Sketcher.Constraint("DistanceY", 0, 2, -1, 1, 25.05))
pad6 = doc.addObject("PartDesign::Pad", "Pad005")
body.addObject(pad6)
pad6.Profile = sketch12
pad6.Length = 20

sketch13 = doc.addObject("Sketcher::SketchObject", "Sketch012")
body.addObject(sketch13)
sketch13.AttachmentSupport = (doc.XY_Plane, [""])
sketch13.MapMode = "FlatFace"
sketch13.addGeometry(Part.LineSegment(App.Vector(-8, 100, 0), App.Vector(0, 100, 0)), False)
sketch13.addGeometry(Part.LineSegment(App.Vector(0, 100, 0), App.Vector(0, 93, 0)), False)
sketch13.addGeometry(Part.LineSegment(App.Vector(0, 93, 0), App.Vector(30, 93, 0)), False)
sketch13.addGeometry(Part.LineSegment(App.Vector(30, 93, 0), App.Vector(30, 145, 0)), False)
sketch13.addGeometry(Part.LineSegment(App.Vector(30, 145, 0), App.Vector(15, 160, 0)), False)
sketch13.addGeometry(Part.LineSegment(App.Vector(15, 160, 0), App.Vector(-8, 160, 0)), False)
sketch13.addGeometry(Part.LineSegment(App.Vector(-8, 160, 0), App.Vector(-2, 157.5, 0)), False)
sketch13.addGeometry(Part.LineSegment(App.Vector(-2, 157.5, 0), App.Vector(4, 130, 0)), False)
sketch13.addGeometry(Part.LineSegment(App.Vector(4, 130, 0), App.Vector(-2, 102.5, 0)), False)
sketch13.addGeometry(Part.LineSegment(App.Vector(-2, 102.5, 0), App.Vector(-8, 100, 0)), False)
sketch13.addConstraint(Sketcher.Constraint("Coincident", 0, 2, 1, 1))
sketch13.addConstraint(Sketcher.Constraint("Coincident", 1, 2, 2, 1))
sketch13.addConstraint(Sketcher.Constraint("Coincident", 2, 2, 3, 1))
sketch13.addConstraint(Sketcher.Constraint("Coincident", 3, 2, 4, 1))
sketch13.addConstraint(Sketcher.Constraint("Coincident", 4, 2, 5, 1))
sketch13.addConstraint(Sketcher.Constraint("Coincident", 5, 2, 6, 1))
sketch13.addConstraint(Sketcher.Constraint("Coincident", 6, 2, 7, 1))
sketch13.addConstraint(Sketcher.Constraint("Coincident", 7, 2, 8, 1))
sketch13.addConstraint(Sketcher.Constraint("Coincident", 8, 2, 9, 1))
sketch13.addConstraint(Sketcher.Constraint("Coincident", 9, 2, 0, 1))
sketch13.addConstraint(Sketcher.Constraint("Horizontal", 0))
sketch13.addConstraint(Sketcher.Constraint("Vertical", 1))
sketch13.addConstraint(Sketcher.Constraint("Horizontal", 2))
sketch13.addConstraint(Sketcher.Constraint("Vertical", 3))
sketch13.addConstraint(Sketcher.Constraint("Horizontal", 5))
sketch13.addConstraint(Sketcher.Constraint("PointOnObject", 0, 2, -2))
sketch13.addConstraint(Sketcher.Constraint("Vertical", 6, 2, 8, 2))
sketch13.addConstraint(Sketcher.Constraint("Vertical", 5, 2, 9, 2))
sketch13.addConstraint(Sketcher.Constraint("Equal", 7, 8))
sketch13.addConstraint(Sketcher.Constraint("Equal", 6, 9))
sketch13.addConstraint(Sketcher.Constraint("DistanceY", 3, 1, 3, 2, 52.0))
sketch13.addConstraint(Sketcher.Constraint("DistanceX", 0, 1, 0, 2, 8.0))
sketch13.addConstraint(Sketcher.Constraint("DistanceX", 2, 1, 2, 2, 30.0))
sketch13.addConstraint(Sketcher.Constraint("DistanceX", 5, 2, 5, 1, 23.0))
sketch13.addConstraint(Sketcher.Constraint("DistanceY", 1, 2, 1, 1, 7.0))
sketch13.addConstraint(Sketcher.Constraint("Angle", 4, Q("135 deg")))
sketch13.addConstraint(Sketcher.Constraint("DistanceY", -1, 1, 0, 2, 100.0))
sketch13.addConstraint(Sketcher.Constraint("DistanceX", 6, 2, -1, 1, 2.0))
sketch13.addConstraint(Sketcher.Constraint("DistanceX", -1, 1, 7, 2, 4.0))
sketch13.addConstraint(Sketcher.Constraint("Distance", 6, 6.5))
pad7 = doc.addObject("PartDesign::Pad", "Pad006")
body.addObject(pad7)
pad7.Profile = sketch13
pad7.Length = 45
doc.recompute()

datumplane = doc.addObject("PartDesign::Plane", "DatumPlane")
body.addObject(datumplane)
datumplane.AttachmentSupport = (doc.XY_Plane, [""])
datumplane.MapMode = "FlatFace"
datumplane.AttachmentOffset = App.Placement(App.Vector(0, 0, -15), App.Rotation())
mirrored = doc.addObject("PartDesign::Mirrored", "Mirrored")
body.addObject(mirrored)
mirrored.Originals = [pad7]
mirrored.MirrorPlane = (datumplane, [""])
body.Tip = mirrored

doc.recompute()
